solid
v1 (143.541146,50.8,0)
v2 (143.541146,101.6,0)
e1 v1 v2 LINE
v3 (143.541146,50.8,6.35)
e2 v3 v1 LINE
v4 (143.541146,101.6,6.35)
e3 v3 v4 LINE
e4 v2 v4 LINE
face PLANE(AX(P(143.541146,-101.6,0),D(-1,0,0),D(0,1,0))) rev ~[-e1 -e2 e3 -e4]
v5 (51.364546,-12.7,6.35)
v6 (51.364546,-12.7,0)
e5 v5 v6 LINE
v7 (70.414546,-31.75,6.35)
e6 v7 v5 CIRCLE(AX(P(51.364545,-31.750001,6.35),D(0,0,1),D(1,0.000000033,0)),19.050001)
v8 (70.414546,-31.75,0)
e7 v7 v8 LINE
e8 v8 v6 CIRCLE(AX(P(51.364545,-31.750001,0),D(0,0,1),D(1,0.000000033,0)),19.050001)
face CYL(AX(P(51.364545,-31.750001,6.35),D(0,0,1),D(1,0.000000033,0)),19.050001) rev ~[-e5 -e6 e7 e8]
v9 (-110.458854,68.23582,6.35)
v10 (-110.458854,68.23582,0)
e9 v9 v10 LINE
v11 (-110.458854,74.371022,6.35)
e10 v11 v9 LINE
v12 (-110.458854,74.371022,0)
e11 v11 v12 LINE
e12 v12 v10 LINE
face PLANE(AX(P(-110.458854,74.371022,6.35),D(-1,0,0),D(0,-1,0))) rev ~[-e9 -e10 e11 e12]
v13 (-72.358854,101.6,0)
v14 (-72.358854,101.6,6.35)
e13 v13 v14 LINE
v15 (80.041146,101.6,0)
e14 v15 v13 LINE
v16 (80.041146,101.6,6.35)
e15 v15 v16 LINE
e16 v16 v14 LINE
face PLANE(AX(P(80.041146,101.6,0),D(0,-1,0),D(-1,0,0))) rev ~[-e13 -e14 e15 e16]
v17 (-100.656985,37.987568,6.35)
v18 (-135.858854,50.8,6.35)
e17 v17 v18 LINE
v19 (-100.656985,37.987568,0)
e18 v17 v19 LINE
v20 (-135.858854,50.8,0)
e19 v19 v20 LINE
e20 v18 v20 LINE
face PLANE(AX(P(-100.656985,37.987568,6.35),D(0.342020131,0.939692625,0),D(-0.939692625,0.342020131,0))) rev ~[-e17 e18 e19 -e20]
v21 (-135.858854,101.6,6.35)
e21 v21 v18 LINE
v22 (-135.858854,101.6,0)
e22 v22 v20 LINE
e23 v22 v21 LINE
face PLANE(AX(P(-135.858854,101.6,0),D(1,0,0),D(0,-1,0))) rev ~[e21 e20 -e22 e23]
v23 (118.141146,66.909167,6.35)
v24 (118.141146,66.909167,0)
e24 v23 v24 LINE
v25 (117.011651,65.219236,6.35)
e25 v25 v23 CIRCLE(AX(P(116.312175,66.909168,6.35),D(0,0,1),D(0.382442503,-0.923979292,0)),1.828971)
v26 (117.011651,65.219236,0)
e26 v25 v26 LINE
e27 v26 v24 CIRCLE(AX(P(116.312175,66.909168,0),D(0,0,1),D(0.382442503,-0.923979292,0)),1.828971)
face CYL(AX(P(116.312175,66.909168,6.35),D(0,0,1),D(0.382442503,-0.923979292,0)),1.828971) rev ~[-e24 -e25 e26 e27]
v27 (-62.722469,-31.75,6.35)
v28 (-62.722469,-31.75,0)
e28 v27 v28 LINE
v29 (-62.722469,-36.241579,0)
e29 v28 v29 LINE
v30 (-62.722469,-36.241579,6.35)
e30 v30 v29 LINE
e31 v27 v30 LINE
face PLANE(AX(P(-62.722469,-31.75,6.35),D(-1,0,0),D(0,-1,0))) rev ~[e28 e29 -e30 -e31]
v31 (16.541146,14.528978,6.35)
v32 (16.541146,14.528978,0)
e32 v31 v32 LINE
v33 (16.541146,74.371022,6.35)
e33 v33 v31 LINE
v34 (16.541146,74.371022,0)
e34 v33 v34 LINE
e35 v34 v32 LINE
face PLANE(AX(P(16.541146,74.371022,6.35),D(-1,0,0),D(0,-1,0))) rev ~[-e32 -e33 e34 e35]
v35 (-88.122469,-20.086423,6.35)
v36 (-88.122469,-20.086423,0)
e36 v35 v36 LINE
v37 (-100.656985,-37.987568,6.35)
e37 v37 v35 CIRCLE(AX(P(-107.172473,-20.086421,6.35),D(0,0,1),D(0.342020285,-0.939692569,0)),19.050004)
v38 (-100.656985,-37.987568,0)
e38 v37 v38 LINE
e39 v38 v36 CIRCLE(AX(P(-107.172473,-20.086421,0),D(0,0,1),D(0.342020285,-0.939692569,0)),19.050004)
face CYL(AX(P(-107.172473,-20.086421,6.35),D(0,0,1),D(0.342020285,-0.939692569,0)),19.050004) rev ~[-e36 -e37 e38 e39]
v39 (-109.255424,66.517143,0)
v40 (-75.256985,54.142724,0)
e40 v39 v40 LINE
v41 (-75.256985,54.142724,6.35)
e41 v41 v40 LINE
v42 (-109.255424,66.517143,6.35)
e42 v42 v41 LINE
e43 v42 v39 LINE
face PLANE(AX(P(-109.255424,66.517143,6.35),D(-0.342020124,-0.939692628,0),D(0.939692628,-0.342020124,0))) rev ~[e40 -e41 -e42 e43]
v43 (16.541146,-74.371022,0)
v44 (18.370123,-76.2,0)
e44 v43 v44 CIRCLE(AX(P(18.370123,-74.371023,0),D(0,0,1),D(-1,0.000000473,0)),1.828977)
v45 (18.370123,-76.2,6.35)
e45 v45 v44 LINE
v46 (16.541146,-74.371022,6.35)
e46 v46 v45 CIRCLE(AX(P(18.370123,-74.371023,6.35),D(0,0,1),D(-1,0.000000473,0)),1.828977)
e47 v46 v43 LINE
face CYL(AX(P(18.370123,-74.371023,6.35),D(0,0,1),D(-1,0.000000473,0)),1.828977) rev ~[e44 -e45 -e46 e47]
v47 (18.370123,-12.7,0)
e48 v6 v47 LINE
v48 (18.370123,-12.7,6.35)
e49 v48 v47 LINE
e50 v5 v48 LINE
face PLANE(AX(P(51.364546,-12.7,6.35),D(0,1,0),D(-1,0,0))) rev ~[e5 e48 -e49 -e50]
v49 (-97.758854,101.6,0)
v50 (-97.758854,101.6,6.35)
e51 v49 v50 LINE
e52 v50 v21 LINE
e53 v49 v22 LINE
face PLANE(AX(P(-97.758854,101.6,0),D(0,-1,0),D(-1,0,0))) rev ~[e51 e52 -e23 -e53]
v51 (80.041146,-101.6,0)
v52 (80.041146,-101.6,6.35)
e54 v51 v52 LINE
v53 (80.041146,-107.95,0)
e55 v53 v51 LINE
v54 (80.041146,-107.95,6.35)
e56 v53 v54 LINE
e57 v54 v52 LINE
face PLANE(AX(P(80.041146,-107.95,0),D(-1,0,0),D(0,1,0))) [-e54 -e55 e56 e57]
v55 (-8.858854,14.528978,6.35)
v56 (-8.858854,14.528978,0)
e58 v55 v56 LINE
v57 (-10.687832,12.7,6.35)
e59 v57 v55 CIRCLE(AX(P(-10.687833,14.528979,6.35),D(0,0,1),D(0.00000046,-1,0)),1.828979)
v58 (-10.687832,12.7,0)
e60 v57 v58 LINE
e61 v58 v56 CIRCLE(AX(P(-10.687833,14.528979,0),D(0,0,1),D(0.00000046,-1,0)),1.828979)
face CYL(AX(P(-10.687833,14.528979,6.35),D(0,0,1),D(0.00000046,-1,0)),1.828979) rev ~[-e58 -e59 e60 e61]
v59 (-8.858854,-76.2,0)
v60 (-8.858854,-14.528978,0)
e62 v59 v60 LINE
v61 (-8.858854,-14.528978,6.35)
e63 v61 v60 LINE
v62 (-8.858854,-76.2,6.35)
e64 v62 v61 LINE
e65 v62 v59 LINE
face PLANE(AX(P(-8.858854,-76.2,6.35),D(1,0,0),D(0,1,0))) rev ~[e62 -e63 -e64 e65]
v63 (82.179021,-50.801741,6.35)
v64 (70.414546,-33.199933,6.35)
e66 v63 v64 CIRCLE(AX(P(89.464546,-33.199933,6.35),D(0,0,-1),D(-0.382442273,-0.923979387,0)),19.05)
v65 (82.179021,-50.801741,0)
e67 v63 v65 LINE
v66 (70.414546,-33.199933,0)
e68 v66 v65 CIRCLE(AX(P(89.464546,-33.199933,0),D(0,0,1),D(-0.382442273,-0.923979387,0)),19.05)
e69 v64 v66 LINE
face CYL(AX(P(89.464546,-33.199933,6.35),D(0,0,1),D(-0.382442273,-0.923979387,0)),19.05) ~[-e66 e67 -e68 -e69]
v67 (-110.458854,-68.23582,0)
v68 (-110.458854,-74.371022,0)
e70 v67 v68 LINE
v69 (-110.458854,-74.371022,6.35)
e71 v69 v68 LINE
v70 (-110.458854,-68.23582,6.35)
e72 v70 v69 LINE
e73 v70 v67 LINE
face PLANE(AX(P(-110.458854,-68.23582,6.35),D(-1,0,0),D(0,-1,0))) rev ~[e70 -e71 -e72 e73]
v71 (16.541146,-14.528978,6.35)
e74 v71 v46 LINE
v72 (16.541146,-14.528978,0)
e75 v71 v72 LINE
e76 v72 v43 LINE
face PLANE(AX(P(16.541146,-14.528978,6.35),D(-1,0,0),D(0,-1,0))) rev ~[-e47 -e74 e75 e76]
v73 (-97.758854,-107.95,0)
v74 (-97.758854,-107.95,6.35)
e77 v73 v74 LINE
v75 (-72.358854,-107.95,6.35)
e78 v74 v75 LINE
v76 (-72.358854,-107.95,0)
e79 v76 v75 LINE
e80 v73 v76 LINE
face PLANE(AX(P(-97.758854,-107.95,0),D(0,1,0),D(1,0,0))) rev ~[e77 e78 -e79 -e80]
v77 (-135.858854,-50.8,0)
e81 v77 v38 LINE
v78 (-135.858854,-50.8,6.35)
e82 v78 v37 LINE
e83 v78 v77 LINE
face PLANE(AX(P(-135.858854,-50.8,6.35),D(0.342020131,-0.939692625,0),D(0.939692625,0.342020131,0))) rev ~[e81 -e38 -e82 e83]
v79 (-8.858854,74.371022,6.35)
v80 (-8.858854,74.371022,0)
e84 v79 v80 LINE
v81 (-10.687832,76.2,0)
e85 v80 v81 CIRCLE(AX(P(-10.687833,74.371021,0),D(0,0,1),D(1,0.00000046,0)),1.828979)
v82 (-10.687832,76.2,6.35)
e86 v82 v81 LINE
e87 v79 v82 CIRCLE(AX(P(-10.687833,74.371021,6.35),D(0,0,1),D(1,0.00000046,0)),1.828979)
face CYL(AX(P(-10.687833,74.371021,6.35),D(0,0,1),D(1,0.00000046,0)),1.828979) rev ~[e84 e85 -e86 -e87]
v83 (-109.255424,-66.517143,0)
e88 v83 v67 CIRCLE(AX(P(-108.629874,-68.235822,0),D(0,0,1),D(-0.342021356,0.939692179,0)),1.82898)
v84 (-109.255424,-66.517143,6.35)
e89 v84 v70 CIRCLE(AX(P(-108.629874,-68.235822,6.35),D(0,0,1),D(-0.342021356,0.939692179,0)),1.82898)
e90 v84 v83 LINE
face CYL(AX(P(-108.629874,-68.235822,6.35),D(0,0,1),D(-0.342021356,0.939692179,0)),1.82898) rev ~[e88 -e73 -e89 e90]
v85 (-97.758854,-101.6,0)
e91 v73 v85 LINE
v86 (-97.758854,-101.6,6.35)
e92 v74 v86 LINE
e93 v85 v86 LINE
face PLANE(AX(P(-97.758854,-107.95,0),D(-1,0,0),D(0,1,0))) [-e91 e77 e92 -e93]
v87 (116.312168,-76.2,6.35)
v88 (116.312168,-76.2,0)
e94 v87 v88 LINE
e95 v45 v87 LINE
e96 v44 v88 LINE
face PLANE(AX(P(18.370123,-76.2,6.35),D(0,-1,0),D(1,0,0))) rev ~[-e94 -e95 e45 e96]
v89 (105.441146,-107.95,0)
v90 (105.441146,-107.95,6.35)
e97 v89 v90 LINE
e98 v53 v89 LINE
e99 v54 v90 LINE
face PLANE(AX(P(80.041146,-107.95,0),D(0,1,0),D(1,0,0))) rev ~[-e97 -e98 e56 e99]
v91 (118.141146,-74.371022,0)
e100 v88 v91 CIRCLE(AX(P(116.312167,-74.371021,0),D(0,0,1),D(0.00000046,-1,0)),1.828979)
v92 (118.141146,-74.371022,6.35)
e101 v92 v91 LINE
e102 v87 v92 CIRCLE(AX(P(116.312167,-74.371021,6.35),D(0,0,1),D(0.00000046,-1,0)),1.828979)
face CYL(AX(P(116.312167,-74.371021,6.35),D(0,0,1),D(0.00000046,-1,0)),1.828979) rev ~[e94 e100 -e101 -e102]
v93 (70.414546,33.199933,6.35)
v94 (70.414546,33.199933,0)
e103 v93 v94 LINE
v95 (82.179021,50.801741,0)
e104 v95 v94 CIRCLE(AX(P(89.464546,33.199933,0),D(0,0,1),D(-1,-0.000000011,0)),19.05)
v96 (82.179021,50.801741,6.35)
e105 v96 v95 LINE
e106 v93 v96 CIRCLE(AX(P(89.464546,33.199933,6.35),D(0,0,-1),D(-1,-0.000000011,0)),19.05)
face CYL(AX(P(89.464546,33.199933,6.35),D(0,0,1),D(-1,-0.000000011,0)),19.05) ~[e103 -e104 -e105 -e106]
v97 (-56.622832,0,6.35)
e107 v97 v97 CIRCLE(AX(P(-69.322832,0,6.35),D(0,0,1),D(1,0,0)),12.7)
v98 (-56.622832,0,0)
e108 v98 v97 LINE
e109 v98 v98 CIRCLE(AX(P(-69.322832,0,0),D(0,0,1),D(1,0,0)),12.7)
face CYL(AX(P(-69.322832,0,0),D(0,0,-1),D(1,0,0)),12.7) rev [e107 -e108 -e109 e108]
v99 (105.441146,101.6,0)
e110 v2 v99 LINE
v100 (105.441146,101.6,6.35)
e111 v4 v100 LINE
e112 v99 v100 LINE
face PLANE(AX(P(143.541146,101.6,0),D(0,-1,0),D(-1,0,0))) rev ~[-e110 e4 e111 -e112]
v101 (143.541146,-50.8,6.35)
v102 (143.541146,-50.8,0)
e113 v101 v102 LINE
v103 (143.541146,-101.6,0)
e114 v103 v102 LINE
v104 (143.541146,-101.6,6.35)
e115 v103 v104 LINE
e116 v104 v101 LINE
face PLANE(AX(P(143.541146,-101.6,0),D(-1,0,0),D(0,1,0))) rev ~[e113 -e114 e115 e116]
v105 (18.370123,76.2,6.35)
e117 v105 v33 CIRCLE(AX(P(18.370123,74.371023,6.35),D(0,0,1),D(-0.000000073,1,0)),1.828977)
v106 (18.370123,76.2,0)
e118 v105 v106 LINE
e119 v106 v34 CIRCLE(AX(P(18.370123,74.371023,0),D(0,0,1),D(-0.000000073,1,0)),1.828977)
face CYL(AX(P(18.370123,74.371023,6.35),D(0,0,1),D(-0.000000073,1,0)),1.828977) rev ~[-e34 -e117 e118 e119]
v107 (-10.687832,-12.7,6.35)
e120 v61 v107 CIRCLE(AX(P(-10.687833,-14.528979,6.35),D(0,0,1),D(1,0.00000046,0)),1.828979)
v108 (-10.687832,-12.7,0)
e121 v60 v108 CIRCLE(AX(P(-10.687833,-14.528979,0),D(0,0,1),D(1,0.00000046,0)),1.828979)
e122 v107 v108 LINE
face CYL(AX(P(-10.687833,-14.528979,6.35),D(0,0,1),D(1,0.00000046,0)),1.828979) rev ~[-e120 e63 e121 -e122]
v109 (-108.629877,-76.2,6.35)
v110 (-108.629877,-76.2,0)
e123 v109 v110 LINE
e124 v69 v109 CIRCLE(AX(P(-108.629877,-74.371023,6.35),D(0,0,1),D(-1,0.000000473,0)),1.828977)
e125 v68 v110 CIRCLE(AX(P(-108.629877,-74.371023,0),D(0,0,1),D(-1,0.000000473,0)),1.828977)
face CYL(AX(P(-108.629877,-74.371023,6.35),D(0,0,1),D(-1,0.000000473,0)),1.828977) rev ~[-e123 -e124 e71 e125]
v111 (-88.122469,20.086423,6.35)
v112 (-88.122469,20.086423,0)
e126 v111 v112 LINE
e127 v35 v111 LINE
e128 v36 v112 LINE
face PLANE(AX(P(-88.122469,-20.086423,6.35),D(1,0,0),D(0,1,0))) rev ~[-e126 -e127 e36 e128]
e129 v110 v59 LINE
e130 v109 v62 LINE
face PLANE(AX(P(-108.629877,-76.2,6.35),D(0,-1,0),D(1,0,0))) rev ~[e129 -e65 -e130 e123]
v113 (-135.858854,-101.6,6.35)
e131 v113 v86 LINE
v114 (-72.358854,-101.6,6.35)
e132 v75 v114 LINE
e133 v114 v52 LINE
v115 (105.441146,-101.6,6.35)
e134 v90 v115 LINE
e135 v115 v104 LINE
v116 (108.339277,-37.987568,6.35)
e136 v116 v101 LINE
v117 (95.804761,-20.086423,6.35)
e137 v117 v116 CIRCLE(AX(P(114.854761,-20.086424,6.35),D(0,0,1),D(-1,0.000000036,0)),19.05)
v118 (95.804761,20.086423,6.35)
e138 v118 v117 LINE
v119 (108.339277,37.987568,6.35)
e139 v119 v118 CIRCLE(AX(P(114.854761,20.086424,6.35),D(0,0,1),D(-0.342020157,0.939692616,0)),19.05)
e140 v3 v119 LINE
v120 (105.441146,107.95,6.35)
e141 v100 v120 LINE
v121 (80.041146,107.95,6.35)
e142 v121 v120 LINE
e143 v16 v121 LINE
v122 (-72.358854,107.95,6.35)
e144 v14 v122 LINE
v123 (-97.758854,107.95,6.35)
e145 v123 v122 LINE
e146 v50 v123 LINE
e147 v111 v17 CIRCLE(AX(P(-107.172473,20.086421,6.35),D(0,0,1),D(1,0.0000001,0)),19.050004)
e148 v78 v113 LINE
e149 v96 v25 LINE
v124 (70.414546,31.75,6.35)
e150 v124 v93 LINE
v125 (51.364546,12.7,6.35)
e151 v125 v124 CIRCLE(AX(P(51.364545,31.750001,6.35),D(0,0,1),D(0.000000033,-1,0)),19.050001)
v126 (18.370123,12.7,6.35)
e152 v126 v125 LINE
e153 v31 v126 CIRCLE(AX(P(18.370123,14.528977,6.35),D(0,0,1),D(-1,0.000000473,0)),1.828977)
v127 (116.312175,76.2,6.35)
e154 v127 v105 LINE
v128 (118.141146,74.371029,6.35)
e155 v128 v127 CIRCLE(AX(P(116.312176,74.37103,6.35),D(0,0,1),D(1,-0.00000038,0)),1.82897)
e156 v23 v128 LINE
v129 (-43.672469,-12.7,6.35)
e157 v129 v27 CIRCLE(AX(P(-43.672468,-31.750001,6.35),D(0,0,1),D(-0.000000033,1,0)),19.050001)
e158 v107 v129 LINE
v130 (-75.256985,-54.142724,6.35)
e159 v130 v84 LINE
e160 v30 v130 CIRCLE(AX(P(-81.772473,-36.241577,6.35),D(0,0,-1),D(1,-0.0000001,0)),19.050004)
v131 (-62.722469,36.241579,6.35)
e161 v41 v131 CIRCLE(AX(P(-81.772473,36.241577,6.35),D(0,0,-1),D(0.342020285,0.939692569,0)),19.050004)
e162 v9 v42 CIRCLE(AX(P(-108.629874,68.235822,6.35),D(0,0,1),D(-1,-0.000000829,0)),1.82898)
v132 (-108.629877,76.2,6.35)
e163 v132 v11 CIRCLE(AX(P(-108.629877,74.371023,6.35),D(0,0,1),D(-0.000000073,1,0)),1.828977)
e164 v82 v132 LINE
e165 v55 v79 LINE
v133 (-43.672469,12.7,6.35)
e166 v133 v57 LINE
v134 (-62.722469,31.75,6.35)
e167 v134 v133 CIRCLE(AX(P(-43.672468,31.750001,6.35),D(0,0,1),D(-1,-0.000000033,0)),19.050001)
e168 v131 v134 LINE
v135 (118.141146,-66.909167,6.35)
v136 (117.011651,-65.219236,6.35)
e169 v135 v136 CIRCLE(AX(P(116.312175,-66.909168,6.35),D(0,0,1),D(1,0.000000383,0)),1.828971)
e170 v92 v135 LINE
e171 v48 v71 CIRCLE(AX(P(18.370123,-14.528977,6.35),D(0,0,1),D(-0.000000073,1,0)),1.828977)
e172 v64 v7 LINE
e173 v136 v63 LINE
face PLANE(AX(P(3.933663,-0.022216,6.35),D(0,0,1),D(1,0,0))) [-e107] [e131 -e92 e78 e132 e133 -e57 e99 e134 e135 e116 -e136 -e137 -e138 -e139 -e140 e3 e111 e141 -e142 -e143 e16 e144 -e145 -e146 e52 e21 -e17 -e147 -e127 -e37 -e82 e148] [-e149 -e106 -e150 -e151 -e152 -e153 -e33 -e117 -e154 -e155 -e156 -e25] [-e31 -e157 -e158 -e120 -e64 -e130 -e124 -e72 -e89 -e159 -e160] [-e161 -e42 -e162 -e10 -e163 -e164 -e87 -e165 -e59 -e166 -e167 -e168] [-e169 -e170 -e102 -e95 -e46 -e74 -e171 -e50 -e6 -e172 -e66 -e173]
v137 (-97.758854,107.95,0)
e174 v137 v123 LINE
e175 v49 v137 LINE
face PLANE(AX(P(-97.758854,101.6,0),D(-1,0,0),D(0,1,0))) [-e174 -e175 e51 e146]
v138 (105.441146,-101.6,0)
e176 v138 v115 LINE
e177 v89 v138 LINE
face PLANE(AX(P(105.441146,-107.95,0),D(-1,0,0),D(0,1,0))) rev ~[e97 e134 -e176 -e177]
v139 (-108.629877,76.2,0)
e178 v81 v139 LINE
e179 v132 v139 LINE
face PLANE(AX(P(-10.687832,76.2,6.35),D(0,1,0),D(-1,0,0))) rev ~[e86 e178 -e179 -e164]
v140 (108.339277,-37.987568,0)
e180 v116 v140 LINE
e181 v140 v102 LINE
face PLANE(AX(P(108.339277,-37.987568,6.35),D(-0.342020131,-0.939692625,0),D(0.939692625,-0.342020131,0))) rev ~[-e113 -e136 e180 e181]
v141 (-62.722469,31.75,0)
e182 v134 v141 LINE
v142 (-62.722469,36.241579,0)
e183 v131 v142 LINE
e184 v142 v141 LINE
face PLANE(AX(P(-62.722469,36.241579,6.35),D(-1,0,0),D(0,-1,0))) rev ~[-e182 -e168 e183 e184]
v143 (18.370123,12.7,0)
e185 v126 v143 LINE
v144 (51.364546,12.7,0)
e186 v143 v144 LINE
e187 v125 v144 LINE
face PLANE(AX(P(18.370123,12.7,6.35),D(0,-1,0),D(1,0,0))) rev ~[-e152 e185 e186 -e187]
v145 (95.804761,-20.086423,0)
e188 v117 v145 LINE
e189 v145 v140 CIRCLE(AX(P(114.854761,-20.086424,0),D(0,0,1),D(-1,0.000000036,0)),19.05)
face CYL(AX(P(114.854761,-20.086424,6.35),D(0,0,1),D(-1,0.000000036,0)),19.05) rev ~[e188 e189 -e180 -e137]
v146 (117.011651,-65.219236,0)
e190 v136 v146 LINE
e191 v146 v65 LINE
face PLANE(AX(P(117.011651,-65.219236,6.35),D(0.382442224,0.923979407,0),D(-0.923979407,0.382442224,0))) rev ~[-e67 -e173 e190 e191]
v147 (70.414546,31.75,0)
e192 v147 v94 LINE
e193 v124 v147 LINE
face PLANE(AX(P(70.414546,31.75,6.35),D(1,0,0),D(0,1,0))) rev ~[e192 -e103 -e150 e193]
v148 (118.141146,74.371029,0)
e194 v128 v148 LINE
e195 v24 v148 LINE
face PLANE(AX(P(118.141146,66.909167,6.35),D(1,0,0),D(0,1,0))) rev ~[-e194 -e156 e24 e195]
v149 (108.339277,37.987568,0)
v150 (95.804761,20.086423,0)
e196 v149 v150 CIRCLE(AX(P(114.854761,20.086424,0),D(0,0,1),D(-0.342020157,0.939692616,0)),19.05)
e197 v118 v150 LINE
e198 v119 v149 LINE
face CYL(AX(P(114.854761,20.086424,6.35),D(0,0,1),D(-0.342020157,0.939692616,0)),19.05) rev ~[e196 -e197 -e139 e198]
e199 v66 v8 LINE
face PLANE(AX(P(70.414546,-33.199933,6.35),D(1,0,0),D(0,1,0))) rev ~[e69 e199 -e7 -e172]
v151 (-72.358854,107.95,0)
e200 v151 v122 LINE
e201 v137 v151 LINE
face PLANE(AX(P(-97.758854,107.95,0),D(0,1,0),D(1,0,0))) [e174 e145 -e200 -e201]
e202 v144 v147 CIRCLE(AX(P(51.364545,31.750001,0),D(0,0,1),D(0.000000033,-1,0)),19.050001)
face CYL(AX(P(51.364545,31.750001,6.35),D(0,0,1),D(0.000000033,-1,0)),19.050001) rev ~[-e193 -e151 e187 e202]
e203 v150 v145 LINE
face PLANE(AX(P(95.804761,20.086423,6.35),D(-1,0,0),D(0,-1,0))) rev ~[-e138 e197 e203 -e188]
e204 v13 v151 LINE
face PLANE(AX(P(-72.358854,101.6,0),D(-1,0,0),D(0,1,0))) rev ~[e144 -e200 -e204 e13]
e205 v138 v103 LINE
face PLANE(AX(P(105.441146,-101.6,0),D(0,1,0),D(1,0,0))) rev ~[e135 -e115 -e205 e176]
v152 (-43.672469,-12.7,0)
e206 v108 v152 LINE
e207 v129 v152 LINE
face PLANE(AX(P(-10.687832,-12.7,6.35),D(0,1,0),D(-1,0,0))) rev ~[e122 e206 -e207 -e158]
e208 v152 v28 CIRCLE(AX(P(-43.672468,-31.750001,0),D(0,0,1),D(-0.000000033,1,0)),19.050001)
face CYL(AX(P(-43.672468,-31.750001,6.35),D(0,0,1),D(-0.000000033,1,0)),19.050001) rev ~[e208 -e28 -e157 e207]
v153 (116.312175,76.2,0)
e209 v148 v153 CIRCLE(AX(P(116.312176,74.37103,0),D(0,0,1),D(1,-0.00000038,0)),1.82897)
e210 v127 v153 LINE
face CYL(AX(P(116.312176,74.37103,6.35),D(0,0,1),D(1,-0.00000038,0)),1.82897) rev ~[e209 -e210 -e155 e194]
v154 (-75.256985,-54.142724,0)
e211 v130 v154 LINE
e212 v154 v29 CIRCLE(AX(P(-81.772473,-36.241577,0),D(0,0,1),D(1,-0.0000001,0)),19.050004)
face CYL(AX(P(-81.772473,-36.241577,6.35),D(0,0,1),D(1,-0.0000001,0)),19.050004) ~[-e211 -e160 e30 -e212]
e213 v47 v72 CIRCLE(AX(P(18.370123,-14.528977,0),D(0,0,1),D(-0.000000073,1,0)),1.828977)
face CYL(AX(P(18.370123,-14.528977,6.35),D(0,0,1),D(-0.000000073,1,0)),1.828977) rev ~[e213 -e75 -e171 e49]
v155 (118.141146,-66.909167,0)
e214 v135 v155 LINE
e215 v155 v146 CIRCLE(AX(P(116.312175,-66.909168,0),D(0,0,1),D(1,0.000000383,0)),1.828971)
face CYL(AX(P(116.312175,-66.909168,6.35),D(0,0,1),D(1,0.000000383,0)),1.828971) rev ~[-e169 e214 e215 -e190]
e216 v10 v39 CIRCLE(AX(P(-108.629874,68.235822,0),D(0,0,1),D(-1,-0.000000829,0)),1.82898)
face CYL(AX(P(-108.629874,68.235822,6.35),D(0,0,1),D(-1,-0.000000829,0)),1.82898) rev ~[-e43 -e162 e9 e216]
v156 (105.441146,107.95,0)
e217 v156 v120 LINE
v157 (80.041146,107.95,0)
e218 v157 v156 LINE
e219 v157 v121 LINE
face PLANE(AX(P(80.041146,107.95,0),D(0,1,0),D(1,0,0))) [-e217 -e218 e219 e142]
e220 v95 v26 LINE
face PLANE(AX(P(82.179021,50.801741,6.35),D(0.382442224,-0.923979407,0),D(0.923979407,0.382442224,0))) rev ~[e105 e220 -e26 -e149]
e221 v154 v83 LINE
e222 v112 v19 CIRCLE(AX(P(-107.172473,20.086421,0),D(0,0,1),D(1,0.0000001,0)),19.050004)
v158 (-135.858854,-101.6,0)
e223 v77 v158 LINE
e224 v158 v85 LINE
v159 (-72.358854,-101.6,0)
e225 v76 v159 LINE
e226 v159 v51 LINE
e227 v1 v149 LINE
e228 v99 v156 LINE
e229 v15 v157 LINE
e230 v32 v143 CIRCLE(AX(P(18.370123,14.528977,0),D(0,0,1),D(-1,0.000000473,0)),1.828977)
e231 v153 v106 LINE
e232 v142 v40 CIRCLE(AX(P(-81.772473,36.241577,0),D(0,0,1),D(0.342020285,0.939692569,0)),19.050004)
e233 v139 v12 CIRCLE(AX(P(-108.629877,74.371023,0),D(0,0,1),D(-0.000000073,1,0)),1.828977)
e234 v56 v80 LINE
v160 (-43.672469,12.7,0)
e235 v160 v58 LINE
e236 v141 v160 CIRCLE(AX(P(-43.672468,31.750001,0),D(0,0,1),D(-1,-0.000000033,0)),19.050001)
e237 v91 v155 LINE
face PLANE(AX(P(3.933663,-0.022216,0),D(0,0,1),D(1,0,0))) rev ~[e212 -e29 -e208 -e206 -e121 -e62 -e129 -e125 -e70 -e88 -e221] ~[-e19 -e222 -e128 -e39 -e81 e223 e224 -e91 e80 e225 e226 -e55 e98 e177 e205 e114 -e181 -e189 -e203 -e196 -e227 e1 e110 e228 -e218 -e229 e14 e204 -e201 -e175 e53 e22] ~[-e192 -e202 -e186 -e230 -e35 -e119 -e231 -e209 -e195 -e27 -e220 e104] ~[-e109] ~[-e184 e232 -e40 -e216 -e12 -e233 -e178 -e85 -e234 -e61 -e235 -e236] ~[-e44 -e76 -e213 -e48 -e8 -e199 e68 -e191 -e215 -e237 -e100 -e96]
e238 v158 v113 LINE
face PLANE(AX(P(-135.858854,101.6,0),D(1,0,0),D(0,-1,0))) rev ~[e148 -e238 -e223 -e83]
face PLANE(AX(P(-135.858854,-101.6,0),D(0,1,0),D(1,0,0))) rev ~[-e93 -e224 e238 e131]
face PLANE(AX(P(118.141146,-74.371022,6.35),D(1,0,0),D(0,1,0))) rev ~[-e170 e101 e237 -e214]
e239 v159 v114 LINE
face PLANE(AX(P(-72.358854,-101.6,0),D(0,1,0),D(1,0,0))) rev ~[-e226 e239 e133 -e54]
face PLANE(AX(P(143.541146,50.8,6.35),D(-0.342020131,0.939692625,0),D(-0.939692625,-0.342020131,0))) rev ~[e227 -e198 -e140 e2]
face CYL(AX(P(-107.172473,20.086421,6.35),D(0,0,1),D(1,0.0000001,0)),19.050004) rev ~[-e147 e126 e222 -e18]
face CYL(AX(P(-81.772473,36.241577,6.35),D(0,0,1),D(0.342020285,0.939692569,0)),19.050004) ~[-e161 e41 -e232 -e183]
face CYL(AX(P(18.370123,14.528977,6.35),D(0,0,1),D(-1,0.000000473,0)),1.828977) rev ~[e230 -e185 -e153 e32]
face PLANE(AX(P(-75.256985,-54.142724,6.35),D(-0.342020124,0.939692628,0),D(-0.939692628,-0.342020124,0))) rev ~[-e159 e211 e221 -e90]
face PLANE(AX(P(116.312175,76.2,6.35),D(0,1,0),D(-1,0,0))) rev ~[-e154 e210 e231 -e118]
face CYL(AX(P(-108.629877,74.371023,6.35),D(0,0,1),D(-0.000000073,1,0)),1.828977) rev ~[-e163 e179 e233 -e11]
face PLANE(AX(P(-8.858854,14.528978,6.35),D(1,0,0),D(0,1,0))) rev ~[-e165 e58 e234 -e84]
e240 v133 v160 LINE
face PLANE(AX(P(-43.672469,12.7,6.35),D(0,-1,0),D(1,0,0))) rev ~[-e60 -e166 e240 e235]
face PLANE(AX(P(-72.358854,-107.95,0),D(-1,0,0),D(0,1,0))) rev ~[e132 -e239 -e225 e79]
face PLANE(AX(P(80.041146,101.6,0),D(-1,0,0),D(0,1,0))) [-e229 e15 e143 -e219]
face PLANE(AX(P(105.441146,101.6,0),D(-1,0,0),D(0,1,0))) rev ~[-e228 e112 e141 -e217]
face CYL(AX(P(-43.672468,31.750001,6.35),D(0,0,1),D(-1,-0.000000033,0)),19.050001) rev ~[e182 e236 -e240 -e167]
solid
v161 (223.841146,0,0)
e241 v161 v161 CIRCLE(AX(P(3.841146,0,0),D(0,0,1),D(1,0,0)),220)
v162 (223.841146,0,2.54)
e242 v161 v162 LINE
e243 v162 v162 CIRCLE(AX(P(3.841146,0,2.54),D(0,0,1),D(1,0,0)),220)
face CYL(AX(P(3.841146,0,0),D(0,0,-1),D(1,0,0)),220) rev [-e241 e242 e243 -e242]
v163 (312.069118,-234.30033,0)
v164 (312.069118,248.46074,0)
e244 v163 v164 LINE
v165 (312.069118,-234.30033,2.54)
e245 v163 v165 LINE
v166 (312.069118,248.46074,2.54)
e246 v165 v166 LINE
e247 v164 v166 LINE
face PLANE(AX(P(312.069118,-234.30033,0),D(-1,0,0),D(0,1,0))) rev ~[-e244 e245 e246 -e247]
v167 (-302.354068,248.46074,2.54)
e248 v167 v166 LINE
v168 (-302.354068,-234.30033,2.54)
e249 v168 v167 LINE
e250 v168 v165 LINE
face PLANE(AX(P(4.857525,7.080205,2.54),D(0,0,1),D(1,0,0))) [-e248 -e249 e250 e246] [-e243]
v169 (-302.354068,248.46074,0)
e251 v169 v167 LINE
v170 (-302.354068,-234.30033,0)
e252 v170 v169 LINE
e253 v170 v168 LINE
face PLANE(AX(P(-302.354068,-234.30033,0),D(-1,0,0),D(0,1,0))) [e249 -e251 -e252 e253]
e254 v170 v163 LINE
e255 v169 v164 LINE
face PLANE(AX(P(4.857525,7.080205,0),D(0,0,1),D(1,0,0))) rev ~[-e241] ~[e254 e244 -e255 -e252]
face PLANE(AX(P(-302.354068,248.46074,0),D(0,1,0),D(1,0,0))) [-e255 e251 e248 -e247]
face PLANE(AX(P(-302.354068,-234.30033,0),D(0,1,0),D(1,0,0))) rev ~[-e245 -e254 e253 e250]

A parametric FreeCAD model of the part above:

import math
import FreeCAD as App
import Part
import Sketcher
Q = App.Units.Quantity

doc = App.newDocument("Part")
body = doc.addObject("PartDesign::Body", "Body")

# Sketch on XY plane
sketch1 = body.newObject("Sketcher::SketchObject", "Sketch")
sketch1.AttachmentSupport = (doc.getObject("XY_Plane"), [""])
sketch1.MapMode = "FlatFace"
sketch1.addGeometry([
    Part.LineSegment(App.Vector(-136, 102, 0), App.Vector(-136, -102, 0)),  # 0
    Part.LineSegment(App.Vector(-136, -102, 0), App.Vector(-98, -102, 0)),  # 1
    Part.LineSegment(App.Vector(-98, -102, 0), App.Vector(-98, -108, 0)),  # 2
    Part.LineSegment(App.Vector(-98, -108, 0), App.Vector(-72, -108, 0)),  # 3
    Part.LineSegment(App.Vector(-72, -108, 0), App.Vector(-72, -102, 0)),  # 4
    Part.LineSegment(App.Vector(-72, -102, 0), App.Vector(80, -102, 0)),  # 5
    Part.LineSegment(App.Vector(80, -102, 0), App.Vector(80, -108, 0)),  # 6
    Part.LineSegment(App.Vector(80, -108, 0), App.Vector(105, -108, 0)),  # 7
    Part.LineSegment(App.Vector(105, -108, 0), App.Vector(105, -102, 0)),  # 8
    Part.LineSegment(App.Vector(105, -102, 0), App.Vector(144, -102, 0)),  # 9
    Part.LineSegment(App.Vector(144, -102, 0), App.Vector(144, 102, 0)),  # 10
    Part.LineSegment(App.Vector(144, 102, 0), App.Vector(105, 102, 0)),  # 11
    Part.LineSegment(App.Vector(105, 102, 0), App.Vector(105, 108, 0)),  # 12
    Part.LineSegment(App.Vector(105, 108, 0), App.Vector(80, 108, 0)),  # 13
    Part.LineSegment(App.Vector(80, 108, 0), App.Vector(80, 102, 0)),  # 14
    Part.LineSegment(App.Vector(80, 102, 0), App.Vector(-72, 102, 0)),  # 15
    Part.LineSegment(App.Vector(-72, 102, 0), App.Vector(-72, 108, 0)),  # 16
    Part.LineSegment(App.Vector(-72, 108, 0), App.Vector(-98, 108, 0)),  # 17
    Part.LineSegment(App.Vector(-98, 108, 0), App.Vector(-98, 102, 0)),  # 18
    Part.LineSegment(App.Vector(-98, 102, 0), App.Vector(-136, 102, 0)),  # 19
    Part.Circle(App.Vector(-69, 0, 0), App.Vector(0, 0, 1), 13),  # 20
], False)
sketch1.addConstraint([
    Sketcher.Constraint("Coincident", 0, 2, 1, 1),
    Sketcher.Constraint("Coincident", 1, 2, 2, 1),
    Sketcher.Constraint("Coincident", 2, 2, 3, 1),
    Sketcher.Constraint("Coincident", 3, 2, 4, 1),
    Sketcher.Constraint("Coincident", 4, 2, 5, 1),
    Sketcher.Constraint("Coincident", 5, 2, 6, 1),
    Sketcher.Constraint("Coincident", 6, 2, 7, 1),
    Sketcher.Constraint("Coincident", 7, 2, 8, 1),
    Sketcher.Constraint("Coincident", 8, 2, 9, 1),
    Sketcher.Constraint("Coincident", 9, 2, 10, 1),
    Sketcher.Constraint("Coincident", 10, 2, 11, 1),
    Sketcher.Constraint("Coincident", 11, 2, 12, 1),
    Sketcher.Constraint("Coincident", 12, 2, 13, 1),
    Sketcher.Constraint("Coincident", 13, 2, 14, 1),
    Sketcher.Constraint("Coincident", 14, 2, 15, 1),
    Sketcher.Constraint("Coincident", 15, 2, 16, 1),
    Sketcher.Constraint("Coincident", 16, 2, 17, 1),
    Sketcher.Constraint("Coincident", 17, 2, 18, 1),
    Sketcher.Constraint("Coincident", 18, 2, 19, 1),
    Sketcher.Constraint("Coincident", 19, 2, 0, 1),
    Sketcher.Constraint("Vertical", 0),
    Sketcher.Constraint("Horizontal", 1),
    Sketcher.Constraint("Vertical", 2),
    Sketcher.Constraint("Horizontal", 3),
    Sketcher.Constraint("Vertical", 4),
    Sketcher.Constraint("Horizontal", 5),
    Sketcher.Constraint("Vertical", 6),
    Sketcher.Constraint("Horizontal", 7),
    Sketcher.Constraint("Vertical", 8),
    Sketcher.Constraint("Horizontal", 9),
    Sketcher.Constraint("Vertical", 10),
    Sketcher.Constraint("Horizontal", 11),
    Sketcher.Constraint("Vertical", 12),
    Sketcher.Constraint("Horizontal", 13),
    Sketcher.Constraint("Vertical", 14),
    Sketcher.Constraint("Horizontal", 15),
    Sketcher.Constraint("Vertical", 16),
    Sketcher.Constraint("Horizontal", 17),
    Sketcher.Constraint("Vertical", 18),
    Sketcher.Constraint("Horizontal", 19),
    Sketcher.Constraint("Symmetric", 8, 2, 11, 2, -1),
    Sketcher.Constraint("Symmetric", 6, 2, 13, 2, -1),
    Sketcher.Constraint("Symmetric", 4, 2, 15, 2, -1),
    Sketcher.Constraint("Symmetric", 2, 2, 17, 2, -1),
    Sketcher.Constraint("PointOnObject", 20, 3, -1),
    Sketcher.Constraint("Horizontal", 1, 2, 4, 2),
    Sketcher.Constraint("Horizontal", 3, 2, 6, 2),
    Sketcher.Constraint("Horizontal", 5, 2, 8, 2),
    Sketcher.Constraint("Horizontal", 15, 2, 18, 2),
    Sketcher.Constraint("Equal", 3, 7),
    Sketcher.Constraint("Equal", 1, 9),
    Sketcher.Constraint("Diameter", 20, Q("1 in")),
    Sketcher.Constraint("DistanceX", 3, 1, 3, 2, Q("1 in")),
    Sketcher.Constraint("DistanceX", 5, 1, 5, 2, Q("6 in")),
    Sketcher.Constraint("DistanceY", 0, 2, 0, 1, Q("8 in")),
    Sketcher.Constraint("DistanceX", 1, 1, 1, 2, Q("1.5 in")),
    Sketcher.Constraint("DistanceY", 2, 2, 2, 1, Q("0.25 in")),
    Sketcher.Constraint("DistanceX", 1, 2, 20, 3, Q("28.436022 mm")),
    Sketcher.Constraint("DistanceX", 20, 3, -1, 1, Q("69.322832 mm")),
])
pad1 = body.newObject("PartDesign::Pad", "Pad")
pad1.Profile = sketch1
pad1.Length = Q("0.25 in")

# Sketch on XY plane
sketch2 = body.newObject("Sketcher::SketchObject", "Sketch001")
sketch2.AttachmentSupport = (doc.getObject("XY_Plane"), [""])
sketch2.MapMode = "FlatFace"
sketch2.AttachmentOffset = App.Placement(App.Vector(0, 0, 0.25 * 25.4), App.Rotation())
sketch2.addGeometry([
    Part.LineSegment(App.Vector(144, -51, 0), App.Vector(144, 51, 0)),  # 0
    Part.LineSegment(App.Vector(144, 51, 0), App.Vector(108, 38, 0)),  # 1
    Part.ArcOfCircle(Part.Circle(App.Vector(115, 20, 0), App.Vector(0, 0, 1), 19), math.radians(110), math.radians(180)),  # 2
    Part.LineSegment(App.Vector(96, 20, 0), App.Vector(96, -20, 0)),  # 3
    Part.ArcOfCircle(Part.Circle(App.Vector(115, -20, 0), App.Vector(0, 0, 1), 19), math.radians(180), math.radians(250)),  # 4
    Part.LineSegment(App.Vector(108, -38, 0), App.Vector(144, -51, 0)),  # 5
    Part.LineSegment(App.Vector(-101, 38, 0), App.Vector(-136, 51, 0)),  # 6
    Part.LineSegment(App.Vector(-136, 51, 0), App.Vector(-136, -51, 0)),  # 7
    Part.LineSegment(App.Vector(-136, -51, 0), App.Vector(-101, -38, 0)),  # 8
    Part.ArcOfCircle(Part.Circle(App.Vector(-107, -20, 0), App.Vector(0, 0, 1), 19), math.radians(-70), math.radians(0)),  # 9
    Part.LineSegment(App.Vector(-88, -20, 0), App.Vector(-88, 20, 0)),  # 10
    Part.ArcOfCircle(Part.Circle(App.Vector(-107, 20, 0), App.Vector(0, 0, 1), 19), math.radians(0), math.radians(70)),  # 11
], False)
sketch2.addConstraint([
    Sketcher.Constraint("Coincident", 0, 2, 1, 1),
    Sketcher.Constraint("Tangent", 1, 2, 2, 1),
    Sketcher.Constraint("Tangent", 2, 2, 3, 1),
    Sketcher.Constraint("Tangent", 3, 2, 4, 1),
    Sketcher.Constraint("Tangent", 4, 2, 5, 1),
    Sketcher.Constraint("Coincident", 5, 2, 0, 1),
    Sketcher.Constraint("Coincident", 6, 2, 7, 1),
    Sketcher.Constraint("Coincident", 7, 2, 8, 1),
    Sketcher.Constraint("Tangent", 8, 2, 9, 1),
    Sketcher.Constraint("Tangent", 9, 2, 10, 1),
    Sketcher.Constraint("Tangent", 10, 2, 11, 1),
    Sketcher.Constraint("Tangent", 11, 2, 6, 1),
    Sketcher.Constraint("Vertical", 0),
    Sketcher.Constraint("Vertical", 3),
    Sketcher.Constraint("Vertical", 7),
    Sketcher.Constraint("Vertical", 10),
    Sketcher.Constraint("Equal", 2, 4),
    Sketcher.Constraint("Equal", 9, 11),
    Sketcher.Constraint("Symmetric", 1, 2, 4, 2, -1),
    Sketcher.Constraint("Symmetric", 8, 2, 11, 2, -1),
    Sketcher.Constraint("Parallel", 5, 6),
    Sketcher.Constraint("Horizontal", 11, 3, 2, 2),
    Sketcher.Constraint("Horizontal", 0, 2, 6, 2),
    Sketcher.Constraint("Horizontal", 4, 2, 8, 2),
    Sketcher.Constraint("DistanceY", 0, 1, 0, 2, Q("4 in")),
    Sketcher.Constraint("Radius", 2, Q("0.75 in")),
    Sketcher.Constraint("Angle", 1, Q("-160.000001 deg")),
    Sketcher.Constraint("DistanceY", 3, 2, 3, 1, Q("40.172846 mm")),
    Sketcher.Constraint("DistanceX", -1, 1, 2, 3, Q("114.854761 mm")),
    Sketcher.Constraint("DistanceX", 9, 2, -1, 1, Q("88.122469 mm")),
])
pocket1 = body.newObject("PartDesign::Pocket", "Pocket")
pocket1.Profile = sketch2
pocket1.Length = Q("1 in")

# Sketch on XY plane
sketch3 = body.newObject("Sketcher::SketchObject", "Sketch002")
sketch3.AttachmentSupport = (doc.getObject("XY_Plane"), [""])
sketch3.MapMode = "FlatFace"
sketch3.AttachmentOffset = App.Placement(App.Vector(0, 0, 0.25 * 25.4), App.Rotation())
sketch3.addGeometry([
    Part.LineSegment(App.Vector(-75.256985, -54.142724, 0), App.Vector(-109.255424, -66.517143, 0)),  # 0
    Part.ArcOfCircle(Part.Circle(App.Vector(-108.629874, -68.235822, 0), App.Vector(0, 0, 1), 1.82898), math.radians(110.000074), math.radians(179.999953)),  # 1
    Part.LineSegment(App.Vector(-110.458854, -68.23582, 0), App.Vector(-110.458854, -74.371022, 0)),  # 2
    Part.ArcOfCircle(Part.Circle(App.Vector(-108.629877, -74.371023, 0), App.Vector(0, 0, 1), 1.828977), math.radians(179.999973), math.radians(269.999996)),  # 3
    Part.LineSegment(App.Vector(-108.629877, -76.2, 0), App.Vector(-8.858854, -76.2, 0)),  # 4
    Part.LineSegment(App.Vector(-8.858854, -76.2, 0), App.Vector(-8.858854, -14.528978, 0)),  # 5
    Part.ArcOfCircle(Part.Circle(App.Vector(-10.687833, -14.528979, 0), App.Vector(0, 0, 1), 1.828979), math.radians(0.000026), math.radians(89.999974)),  # 6
    Part.LineSegment(App.Vector(-10.687832, -12.7, 0), App.Vector(-43.672469, -12.7, 0)),  # 7
    Part.ArcOfCircle(Part.Circle(App.Vector(-43.672468, -31.750001, 0), App.Vector(0, 0, 1), 19.050001), math.radians(90.000002), math.radians(179.999998)),  # 8
    Part.LineSegment(App.Vector(-62.722469, -31.75, 0), App.Vector(-62.722469, -36.241579, 0)),  # 9
    Part.ArcOfCircle(Part.Circle(App.Vector(-81.772473, -36.241577, 0), App.Vector(0, 0, 1), 19.050004), math.radians(-69.999991), math.radians(-0.000006)),  # 10
    Part.LineSegment(App.Vector(-62.722469, 36.241579, 0), App.Vector(-62.722469, 31.75, 0)),  # 11
    Part.ArcOfCircle(Part.Circle(App.Vector(-43.672468, 31.750001, 0), App.Vector(0, 0, 1), 19.050001), math.radians(-179.999998), math.radians(-90.000002)),  # 12
    Part.LineSegment(App.Vector(-43.672469, 12.7, 0), App.Vector(-10.687832, 12.7, 0)),  # 13
    Part.ArcOfCircle(Part.Circle(App.Vector(-10.687833, 14.528979, 0), App.Vector(0, 0, 1), 1.828979), math.radians(-89.999974), math.radians(-0.000026)),  # 14
    Part.LineSegment(App.Vector(-8.858854, 14.528978, 0), App.Vector(-8.858854, 74.371022, 0)),  # 15
    Part.ArcOfCircle(Part.Circle(App.Vector(-10.687833, 74.371021, 0), App.Vector(0, 0, 1), 1.828979), math.radians(0.000026), math.radians(89.999974)),  # 16
    Part.LineSegment(App.Vector(-10.687832, 76.2, 0), App.Vector(-108.629877, 76.2, 0)),  # 17
    Part.ArcOfCircle(Part.Circle(App.Vector(-108.629877, 74.371023, 0), App.Vector(0, 0, 1), 1.828977), math.radians(90.000004), math.radians(180.000027)),  # 18
    Part.LineSegment(App.Vector(-110.458854, 74.371022, 0), App.Vector(-110.458854, 68.23582, 0)),  # 19
    Part.ArcOfCircle(Part.Circle(App.Vector(-108.629874, 68.235822, 0), App.Vector(0, 0, 1), 1.82898), math.radians(-179.999953), math.radians(-110.000074)),  # 20
    Part.LineSegment(App.Vector(-109.255424, 66.517143, 0), App.Vector(-75.256985, 54.142724, 0)),  # 21
    Part.ArcOfCircle(Part.Circle(App.Vector(-81.772473, 36.241577, 0), App.Vector(0, 0, 1), 19.050004), math.radians(0.000006), math.radians(69.999991)),  # 22
    Part.LineSegment(App.Vector(82.179021, 50.801741, 0), App.Vector(117.011651, 65.219236, 0)),  # 23
    Part.ArcOfCircle(Part.Circle(App.Vector(116.312175, 66.909168, 0), App.Vector(0, 0, 1), 1.828971), math.radians(-67.514941), math.radians(-0.000022)),  # 24
    Part.LineSegment(App.Vector(118.141146, 66.909167, 0), App.Vector(118.141146, 74.371029, 0)),  # 25
    Part.ArcOfCircle(Part.Circle(App.Vector(116.312176, 74.37103, 0), App.Vector(0, 0, 1), 1.82897), math.radians(-0.000022), math.radians(90.000022)),  # 26
    Part.LineSegment(App.Vector(116.312175, 76.2, 0), App.Vector(18.370123, 76.2, 0)),  # 27
    Part.ArcOfCircle(Part.Circle(App.Vector(18.370123, 74.371023, 0), App.Vector(0, 0, 1), 1.828977), math.radians(90.000004), math.radians(180.000027)),  # 28
    Part.LineSegment(App.Vector(16.541146, 74.371022, 0), App.Vector(16.541146, 14.528978, 0)),  # 29
    Part.ArcOfCircle(Part.Circle(App.Vector(18.370123, 14.528977, 0), App.Vector(0, 0, 1), 1.828977), math.radians(179.999973), math.radians(269.999996)),  # 30
    Part.LineSegment(App.Vector(18.370123, 12.7, 0), App.Vector(51.364546, 12.7, 0)),  # 31
    Part.ArcOfCircle(Part.Circle(App.Vector(51.364545, 31.750001, 0), App.Vector(0, 0, 1), 19.050001), math.radians(-89.999998), math.radians(-0.000002)),  # 32
    Part.LineSegment(App.Vector(70.414546, 31.75, 0), App.Vector(70.414546, 33.199933, 0)),  # 33
    Part.ArcOfCircle(Part.Circle(App.Vector(89.464546, 33.199933, 0), App.Vector(0, 0, 1), 19.05), math.radians(112.485045), math.radians(180.000001)),  # 34
    Part.ArcOfCircle(Part.Circle(App.Vector(89.464546, -33.199933, 0), App.Vector(0, 0, 1), 19.05), math.radians(179.999999), math.radians(247.514955)),  # 35
    Part.LineSegment(App.Vector(70.414546, -33.199933, 0), App.Vector(70.414546, -31.75, 0)),  # 36
    Part.ArcOfCircle(Part.Circle(App.Vector(51.364545, -31.750001, 0), App.Vector(0, 0, 1), 19.050001), math.radians(0.000002), math.radians(89.999998)),  # 37
    Part.LineSegment(App.Vector(51.364546, -12.7, 0), App.Vector(18.370123, -12.7, 0)),  # 38
    Part.ArcOfCircle(Part.Circle(App.Vector(18.370123, -14.528977, 0), App.Vector(0, 0, 1), 1.828977), math.radians(90.000004), math.radians(180.000027)),  # 39
    Part.LineSegment(App.Vector(16.541146, -14.528978, 0), App.Vector(16.541146, -74.371022, 0)),  # 40
    Part.ArcOfCircle(Part.Circle(App.Vector(18.370123, -74.371023, 0), App.Vector(0, 0, 1), 1.828977), math.radians(179.999973), math.radians(269.999996)),  # 41
    Part.LineSegment(App.Vector(18.370123, -76.2, 0), App.Vector(116.312168, -76.2, 0)),  # 42
    Part.ArcOfCircle(Part.Circle(App.Vector(116.312167, -74.371021, 0), App.Vector(0, 0, 1), 1.828979), math.radians(-89.999974), math.radians(-0.000026)),  # 43
    Part.LineSegment(App.Vector(118.141146, -74.371022, 0), App.Vector(118.141146, -66.909167, 0)),  # 44
    Part.ArcOfCircle(Part.Circle(App.Vector(116.312175, -66.909168, 0), App.Vector(0, 0, 1), 1.828971), math.radians(0.000022), math.radians(67.514941)),  # 45
    Part.LineSegment(App.Vector(117.011651, -65.219236, 0), App.Vector(82.179021, -50.801741, 0)),  # 46
], False)
sketch3.addConstraint([
    Sketcher.Constraint("Coincident", 0, 2, 1, 1),
    Sketcher.Constraint("Coincident", 1, 2, 2, 1),
    Sketcher.Constraint("Coincident", 2, 2, 3, 1),
    Sketcher.Constraint("Coincident", 3, 2, 4, 1),
    Sketcher.Constraint("Coincident", 4, 2, 5, 1),
    Sketcher.Constraint("Coincident", 5, 2, 6, 1),
    Sketcher.Constraint("Coincident", 6, 2, 7, 1),
    Sketcher.Constraint("Coincident", 7, 2, 8, 1),
    Sketcher.Constraint("Coincident", 8, 2, 9, 1),
    Sketcher.Constraint("Coincident", 9, 2, 10, 2),
    Sketcher.Constraint("Coincident", 10, 1, 0, 1),
    Sketcher.Constraint("Coincident", 11, 2, 12, 1),
    Sketcher.Constraint("Coincident", 12, 2, 13, 1),
    Sketcher.Constraint("Coincident", 13, 2, 14, 1),
    Sketcher.Constraint("Coincident", 14, 2, 15, 1),
    Sketcher.Constraint("Coincident", 15, 2, 16, 1),
    Sketcher.Constraint("Coincident", 16, 2, 17, 1),
    Sketcher.Constraint("Coincident", 17, 2, 18, 1),
    Sketcher.Constraint("Coincident", 18, 2, 19, 1),
    Sketcher.Constraint("Coincident", 19, 2, 20, 1),
    Sketcher.Constraint("Coincident", 20, 2, 21, 1),
    Sketcher.Constraint("Coincident", 21, 2, 22, 2),
    Sketcher.Constraint("Coincident", 22, 1, 11, 1),
    Sketcher.Constraint("Coincident", 23, 2, 24, 1),
    Sketcher.Constraint("Coincident", 24, 2, 25, 1),
    Sketcher.Constraint("Coincident", 25, 2, 26, 1),
    Sketcher.Constraint("Coincident", 26, 2, 27, 1),
    Sketcher.Constraint("Coincident", 27, 2, 28, 1),
    Sketcher.Constraint("Coincident", 28, 2, 29, 1),
    Sketcher.Constraint("Coincident", 29, 2, 30, 1),
    Sketcher.Constraint("Coincident", 30, 2, 31, 1),
    Sketcher.Constraint("Coincident", 31, 2, 32, 1),
    Sketcher.Constraint("Coincident", 32, 2, 33, 1),
    Sketcher.Constraint("Coincident", 33, 2, 34, 2),
    Sketcher.Constraint("Coincident", 34, 1, 23, 1),
    Sketcher.Constraint("Coincident", 35, 1, 36, 1),
    Sketcher.Constraint("Coincident", 36, 2, 37, 1),
    Sketcher.Constraint("Coincident", 37, 2, 38, 1),
    Sketcher.Constraint("Coincident", 38, 2, 39, 1),
    Sketcher.Constraint("Coincident", 39, 2, 40, 1),
    Sketcher.Constraint("Coincident", 40, 2, 41, 1),
    Sketcher.Constraint("Coincident", 41, 2, 42, 1),
    Sketcher.Constraint("Coincident", 42, 2, 43, 1),
    Sketcher.Constraint("Coincident", 43, 2, 44, 1),
    Sketcher.Constraint("Coincident", 44, 2, 45, 1),
    Sketcher.Constraint("Coincident", 45, 2, 46, 1),
    Sketcher.Constraint("Coincident", 46, 2, 35, 2),
    Sketcher.Constraint("Vertical", 2),
    Sketcher.Constraint("Horizontal", 4),
    Sketcher.Constraint("Vertical", 5),
    Sketcher.Constraint("Horizontal", 7),
    Sketcher.Constraint("Vertical", 9),
    Sketcher.Constraint("Vertical", 11),
    Sketcher.Constraint("Horizontal", 13),
    Sketcher.Constraint("Vertical", 15),
    Sketcher.Constraint("Horizontal", 17),
    Sketcher.Constraint("Vertical", 19),
    Sketcher.Constraint("Vertical", 25),
    Sketcher.Constraint("Horizontal", 27),
    Sketcher.Constraint("Vertical", 29),
    Sketcher.Constraint("Horizontal", 31),
    Sketcher.Constraint("Vertical", 33),
    Sketcher.Constraint("Vertical", 36),
    Sketcher.Constraint("Horizontal", 38),
    Sketcher.Constraint("Vertical", 40),
    Sketcher.Constraint("Horizontal", 42),
    Sketcher.Constraint("Vertical", 44),
    Sketcher.Constraint("Radius", 8, Q("0.75 in")),
    Sketcher.Constraint("Radius", 10, Q("0.7500001 in")),
    Sketcher.Constraint("Radius", 12, Q("0.75 in")),
    Sketcher.Constraint("Radius", 22, Q("0.7500001 in")),
    Sketcher.Constraint("Radius", 32, Q("0.75 in")),
    Sketcher.Constraint("Radius", 34, Q("0.75 in")),
    Sketcher.Constraint("Radius", 35, Q("0.75 in")),
    Sketcher.Constraint("Radius", 37, Q("0.75 in")),
    Sketcher.Constraint("DistanceY", 3, 2, -1, 1, Q("3 in")),
    Sketcher.Constraint("DistanceY", -1, 1, 16, 2, Q("3 in")),
    Sketcher.Constraint("DistanceY", -1, 1, 26, 2, Q("3 in")),
    Sketcher.Constraint("DistanceY", 41, 2, -1, 1, Q("3 in")),
    Sketcher.Constraint("DistanceY", 6, 2, -1, 1, Q("0.5 in")),
    Sketcher.Constraint("DistanceY", -1, 1, 12, 2, Q("0.5 in")),
    Sketcher.Constraint("DistanceY", -1, 1, 30, 2, Q("0.5 in")),
    Sketcher.Constraint("DistanceY", 37, 2, -1, 1, Q("0.5 in")),
    Sketcher.Constraint("DistanceY", 8, 2, -1, 1, Q("1.25 in")),
    Sketcher.Constraint("DistanceY", -1, 1, 11, 2, Q("1.25 in")),
    Sketcher.Constraint("DistanceY", -1, 1, 32, 2, Q("1.25 in")),
    Sketcher.Constraint("DistanceY", 36, 2, -1, 1, Q("1.25 in")),
    Sketcher.Constraint("Radius", 1, Q("1.82898 mm")),
    Sketcher.Constraint("Radius", 6, Q("1.828979 mm")),
    Sketcher.Constraint("Radius", 14, Q("1.828979 mm")),
    Sketcher.Constraint("Radius", 16, Q("1.828979 mm")),
    Sketcher.Constraint("Radius", 20, Q("1.82898 mm")),
    Sketcher.Constraint("Radius", 24, Q("1.828971 mm")),
    Sketcher.Constraint("Radius", 26, Q("1.82897 mm")),
    Sketcher.Constraint("Radius", 43, Q("1.828979 mm")),
    Sketcher.Constraint("Radius", 45, Q("1.828971 mm")),
    Sketcher.Constraint("DistanceY", 2, 2, 2, 1, Q("6.135202 mm")),
    Sketcher.Constraint("DistanceY", 19, 2, 19, 1, Q("6.135202 mm")),
    Sketcher.Constraint("Radius", 3, Q("1.828977 mm")),
    Sketcher.Constraint("Radius", 18, Q("1.828977 mm")),
    Sketcher.Constraint("Radius", 28, Q("1.828977 mm")),
    Sketcher.Constraint("Radius", 30, Q("1.828977 mm")),
    Sketcher.Constraint("Radius", 39, Q("1.828977 mm")),
    Sketcher.Constraint("Radius", 41, Q("1.828977 mm")),
    Sketcher.Constraint("DistanceX", 27, 2, 27, 1, Q("97.942052 mm")),
    Sketcher.Constraint("DistanceY", 9, 2, 9, 1, Q("4.491579 mm")),
    Sketcher.Constraint("DistanceY", 11, 2, 11, 1, Q("4.491579 mm")),
    Sketcher.Constraint("DistanceY", 25, 1, 25, 2, Q("7.461862 mm")),
    Sketcher.Constraint("Distance", 23, Q("37.698492 mm")),
    Sketcher.Constraint("Distance", 46, Q("37.698492 mm")),
    Sketcher.Constraint("DistanceX", 4, 1, 4, 2, Q("99.771023 mm")),
    Sketcher.Constraint("DistanceX", 7, 2, 7, 1, Q("32.984637 mm")),
    Sketcher.Constraint("DistanceX", 13, 1, 13, 2, Q("32.984637 mm")),
    Sketcher.Constraint("DistanceX", 17, 2, 17, 1, Q("97.942045 mm")),
    Sketcher.Constraint("DistanceX", 31, 1, 31, 2, Q("32.994423 mm")),
    Sketcher.Constraint("DistanceX", 38, 2, 38, 1, Q("32.994423 mm")),
    Sketcher.Constraint("DistanceX", 42, 1, 42, 2, Q("97.942045 mm")),
    Sketcher.Constraint("DistanceY", 5, 1, 5, 2, Q("61.671022 mm")),
    Sketcher.Constraint("DistanceY", 15, 1, 15, 2, Q("59.842044 mm")),
    Sketcher.Constraint("DistanceY", 29, 2, 29, 1, Q("59.842044 mm")),
    Sketcher.Constraint("DistanceY", 33, 1, 33, 2, Q("1.449933 mm")),
    Sketcher.Constraint("DistanceY", 36, 1, 36, 2, Q("1.449933 mm")),
    Sketcher.Constraint("DistanceY", 40, 2, 40, 1, Q("59.842044 mm")),
    Sketcher.Constraint("DistanceY", 44, 1, 44, 2, Q("7.461855 mm")),
    Sketcher.Constraint("DistanceY", 1, 3, -1, 1, Q("68.235822 mm")),
    Sketcher.Constraint("DistanceX", 8, 3, -1, 1, Q("43.672468 mm")),
    Sketcher.Constraint("DistanceX", 12, 3, -1, 1, Q("43.672468 mm")),
    Sketcher.Constraint("DistanceY", -1, 1, 20, 3, Q("68.235822 mm")),
    Sketcher.Constraint("DistanceY", 1, 2, -1, 1, Q("68.23582 mm")),
    Sketcher.Constraint("DistanceX", 7, 2, -1, 1, Q("43.672469 mm")),
    Sketcher.Constraint("DistanceX", 12, 2, -1, 1, Q("43.672469 mm")),
    Sketcher.Constraint("DistanceY", -1, 1, 15, 2, Q("74.371022 mm")),
    Sketcher.Constraint("DistanceY", -1, 1, 18, 2, Q("74.371022 mm")),
    Sketcher.Constraint("DistanceX", -1, 1, 23, 2, Q("117.011651 mm")),
    Sketcher.Constraint("DistanceY", -1, 1, 25, 2, Q("74.371029 mm")),
    Sketcher.Constraint("DistanceY", -1, 1, 28, 2, Q("74.371022 mm")),
    Sketcher.Constraint("DistanceX", -1, 1, 34, 1, Q("82.179021 mm")),
    Sketcher.Constraint("DistanceY", -1, 1, 34, 1, Q("50.801741 mm")),
    Sketcher.Constraint("DistanceY", 40, 2, -1, 1, Q("74.371022 mm")),
    Sketcher.Constraint("DistanceX", -1, 1, 42, 2, Q("116.312168 mm")),
    Sketcher.Constraint("DistanceY", 43, 2, -1, 1, Q("74.371022 mm")),
    Sketcher.Constraint("DistanceX", -1, 1, 45, 2, Q("117.011651 mm")),
    Sketcher.Constraint("DistanceX", -1, 1, 46, 2, Q("82.179021 mm")),
    Sketcher.Constraint("DistanceY", 46, 2, -1, 1, Q("50.801741 mm")),
    Sketcher.Constraint("Distance", 0, Q("36.180383 mm")),
    Sketcher.Constraint("Distance", 21, Q("36.180383 mm")),
    Sketcher.Constraint("DistanceX", 1, 3, -1, 1, Q("108.629874 mm")),
    Sketcher.Constraint("DistanceX", 6, 3, -1, 1, Q("10.687833 mm")),
    Sketcher.Constraint("DistanceY", 10, 3, -1, 1, Q("36.241577 mm")),
    Sketcher.Constraint("DistanceX", 14, 3, -1, 1, Q("10.687833 mm")),
    Sketcher.Constraint("DistanceX", 18, 3, -1, 1, Q("108.629877 mm")),
    Sketcher.Constraint("DistanceY", -1, 1, 22, 3, Q("36.241577 mm")),
    Sketcher.Constraint("DistanceX", -1, 1, 24, 3, Q("116.312175 mm")),
    Sketcher.Constraint("DistanceX", -1, 1, 28, 3, Q("18.370123 mm")),
    Sketcher.Constraint("DistanceX", -1, 1, 32, 3, Q("51.364545 mm")),
    Sketcher.Constraint("DistanceX", -1, 1, 35, 3, Q("89.464546 mm")),
    Sketcher.Constraint("DistanceX", -1, 1, 39, 3, Q("18.370123 mm")),
    Sketcher.Constraint("DistanceX", -1, 1, 43, 3, Q("116.312167 mm")),
    Sketcher.Constraint("DistanceX", 0, 2, -1, 1, Q("109.255424 mm")),
    Sketcher.Constraint("DistanceX", 16, 2, -1, 1, Q("10.687832 mm")),
    Sketcher.Constraint("DistanceX", 20, 2, -1, 1, Q("109.255424 mm")),
    Sketcher.Constraint("DistanceX", -1, 1, 26, 2, Q("116.312175 mm")),
    Sketcher.Constraint("DistanceX", -1, 1, 30, 2, Q("18.370123 mm")),
    Sketcher.Constraint("DistanceX", -1, 1, 37, 2, Q("51.364546 mm")),
])
pocket2 = body.newObject("PartDesign::Pocket", "Pocket001")
pocket2.Profile = sketch3
pocket2.Length = Q("1 in")
body2 = doc.addObject("PartDesign::Body", "Body001")

# Sketch on XY plane
sketch4 = body2.newObject("Sketcher::SketchObject", "Sketch003")
sketch4.AttachmentSupport = (doc.getObject("XY_Plane001"), [""])
sketch4.MapMode = "FlatFace"
sketch4.addGeometry([
    Part.LineSegment(App.Vector(-302, 248, 0), App.Vector(-302, -234, 0)),  # 0
    Part.LineSegment(App.Vector(-302, -234, 0), App.Vector(312, -234, 0)),  # 1
    Part.LineSegment(App.Vector(312, -234, 0), App.Vector(312, 248, 0)),  # 2
    Part.LineSegment(App.Vector(312, 248, 0), App.Vector(-302, 248, 0)),  # 3
    Part.Circle(App.Vector(4, 0, 0), App.Vector(0, 0, 1), 220),  # 4
], False)
sketch4.addConstraint([
    Sketcher.Constraint("Coincident", 0, 2, 1, 1),
    Sketcher.Constraint("Coincident", 1, 2, 2, 1),
    Sketcher.Constraint("Coincident", 2, 2, 3, 1),
    Sketcher.Constraint("Coincident", 3, 2, 0, 1),
    Sketcher.Constraint("Vertical", 0),
    Sketcher.Constraint("Horizontal", 1),
    Sketcher.Constraint("Vertical", 2),
    Sketcher.Constraint("Horizontal", 3),
    Sketcher.Constraint("PointOnObject", 4, 3, -1),
    Sketcher.Constraint("Diameter", 4, Q("440 mm")),
    Sketcher.Constraint("DistanceY", 0, 2, 0, 1, Q("482.76107 mm")),
    Sketcher.Constraint("DistanceX", 1, 1, 1, 2, Q("614.423186 mm")),
    Sketcher.Constraint("DistanceX", 0, 2, -1, 1, Q("302.354068 mm")),
    Sketcher.Constraint("DistanceY", 0, 2, -1, 1, Q("234.30033 mm")),
    Sketcher.Constraint("DistanceX", 4, 3, 1, 2, Q("308.227972 mm")),
])
pad2 = body2.newObject("PartDesign::Pad", "Pad001")
pad2.Profile = sketch4
pad2.Length = Q("0.1 in")

doc.recompute()
